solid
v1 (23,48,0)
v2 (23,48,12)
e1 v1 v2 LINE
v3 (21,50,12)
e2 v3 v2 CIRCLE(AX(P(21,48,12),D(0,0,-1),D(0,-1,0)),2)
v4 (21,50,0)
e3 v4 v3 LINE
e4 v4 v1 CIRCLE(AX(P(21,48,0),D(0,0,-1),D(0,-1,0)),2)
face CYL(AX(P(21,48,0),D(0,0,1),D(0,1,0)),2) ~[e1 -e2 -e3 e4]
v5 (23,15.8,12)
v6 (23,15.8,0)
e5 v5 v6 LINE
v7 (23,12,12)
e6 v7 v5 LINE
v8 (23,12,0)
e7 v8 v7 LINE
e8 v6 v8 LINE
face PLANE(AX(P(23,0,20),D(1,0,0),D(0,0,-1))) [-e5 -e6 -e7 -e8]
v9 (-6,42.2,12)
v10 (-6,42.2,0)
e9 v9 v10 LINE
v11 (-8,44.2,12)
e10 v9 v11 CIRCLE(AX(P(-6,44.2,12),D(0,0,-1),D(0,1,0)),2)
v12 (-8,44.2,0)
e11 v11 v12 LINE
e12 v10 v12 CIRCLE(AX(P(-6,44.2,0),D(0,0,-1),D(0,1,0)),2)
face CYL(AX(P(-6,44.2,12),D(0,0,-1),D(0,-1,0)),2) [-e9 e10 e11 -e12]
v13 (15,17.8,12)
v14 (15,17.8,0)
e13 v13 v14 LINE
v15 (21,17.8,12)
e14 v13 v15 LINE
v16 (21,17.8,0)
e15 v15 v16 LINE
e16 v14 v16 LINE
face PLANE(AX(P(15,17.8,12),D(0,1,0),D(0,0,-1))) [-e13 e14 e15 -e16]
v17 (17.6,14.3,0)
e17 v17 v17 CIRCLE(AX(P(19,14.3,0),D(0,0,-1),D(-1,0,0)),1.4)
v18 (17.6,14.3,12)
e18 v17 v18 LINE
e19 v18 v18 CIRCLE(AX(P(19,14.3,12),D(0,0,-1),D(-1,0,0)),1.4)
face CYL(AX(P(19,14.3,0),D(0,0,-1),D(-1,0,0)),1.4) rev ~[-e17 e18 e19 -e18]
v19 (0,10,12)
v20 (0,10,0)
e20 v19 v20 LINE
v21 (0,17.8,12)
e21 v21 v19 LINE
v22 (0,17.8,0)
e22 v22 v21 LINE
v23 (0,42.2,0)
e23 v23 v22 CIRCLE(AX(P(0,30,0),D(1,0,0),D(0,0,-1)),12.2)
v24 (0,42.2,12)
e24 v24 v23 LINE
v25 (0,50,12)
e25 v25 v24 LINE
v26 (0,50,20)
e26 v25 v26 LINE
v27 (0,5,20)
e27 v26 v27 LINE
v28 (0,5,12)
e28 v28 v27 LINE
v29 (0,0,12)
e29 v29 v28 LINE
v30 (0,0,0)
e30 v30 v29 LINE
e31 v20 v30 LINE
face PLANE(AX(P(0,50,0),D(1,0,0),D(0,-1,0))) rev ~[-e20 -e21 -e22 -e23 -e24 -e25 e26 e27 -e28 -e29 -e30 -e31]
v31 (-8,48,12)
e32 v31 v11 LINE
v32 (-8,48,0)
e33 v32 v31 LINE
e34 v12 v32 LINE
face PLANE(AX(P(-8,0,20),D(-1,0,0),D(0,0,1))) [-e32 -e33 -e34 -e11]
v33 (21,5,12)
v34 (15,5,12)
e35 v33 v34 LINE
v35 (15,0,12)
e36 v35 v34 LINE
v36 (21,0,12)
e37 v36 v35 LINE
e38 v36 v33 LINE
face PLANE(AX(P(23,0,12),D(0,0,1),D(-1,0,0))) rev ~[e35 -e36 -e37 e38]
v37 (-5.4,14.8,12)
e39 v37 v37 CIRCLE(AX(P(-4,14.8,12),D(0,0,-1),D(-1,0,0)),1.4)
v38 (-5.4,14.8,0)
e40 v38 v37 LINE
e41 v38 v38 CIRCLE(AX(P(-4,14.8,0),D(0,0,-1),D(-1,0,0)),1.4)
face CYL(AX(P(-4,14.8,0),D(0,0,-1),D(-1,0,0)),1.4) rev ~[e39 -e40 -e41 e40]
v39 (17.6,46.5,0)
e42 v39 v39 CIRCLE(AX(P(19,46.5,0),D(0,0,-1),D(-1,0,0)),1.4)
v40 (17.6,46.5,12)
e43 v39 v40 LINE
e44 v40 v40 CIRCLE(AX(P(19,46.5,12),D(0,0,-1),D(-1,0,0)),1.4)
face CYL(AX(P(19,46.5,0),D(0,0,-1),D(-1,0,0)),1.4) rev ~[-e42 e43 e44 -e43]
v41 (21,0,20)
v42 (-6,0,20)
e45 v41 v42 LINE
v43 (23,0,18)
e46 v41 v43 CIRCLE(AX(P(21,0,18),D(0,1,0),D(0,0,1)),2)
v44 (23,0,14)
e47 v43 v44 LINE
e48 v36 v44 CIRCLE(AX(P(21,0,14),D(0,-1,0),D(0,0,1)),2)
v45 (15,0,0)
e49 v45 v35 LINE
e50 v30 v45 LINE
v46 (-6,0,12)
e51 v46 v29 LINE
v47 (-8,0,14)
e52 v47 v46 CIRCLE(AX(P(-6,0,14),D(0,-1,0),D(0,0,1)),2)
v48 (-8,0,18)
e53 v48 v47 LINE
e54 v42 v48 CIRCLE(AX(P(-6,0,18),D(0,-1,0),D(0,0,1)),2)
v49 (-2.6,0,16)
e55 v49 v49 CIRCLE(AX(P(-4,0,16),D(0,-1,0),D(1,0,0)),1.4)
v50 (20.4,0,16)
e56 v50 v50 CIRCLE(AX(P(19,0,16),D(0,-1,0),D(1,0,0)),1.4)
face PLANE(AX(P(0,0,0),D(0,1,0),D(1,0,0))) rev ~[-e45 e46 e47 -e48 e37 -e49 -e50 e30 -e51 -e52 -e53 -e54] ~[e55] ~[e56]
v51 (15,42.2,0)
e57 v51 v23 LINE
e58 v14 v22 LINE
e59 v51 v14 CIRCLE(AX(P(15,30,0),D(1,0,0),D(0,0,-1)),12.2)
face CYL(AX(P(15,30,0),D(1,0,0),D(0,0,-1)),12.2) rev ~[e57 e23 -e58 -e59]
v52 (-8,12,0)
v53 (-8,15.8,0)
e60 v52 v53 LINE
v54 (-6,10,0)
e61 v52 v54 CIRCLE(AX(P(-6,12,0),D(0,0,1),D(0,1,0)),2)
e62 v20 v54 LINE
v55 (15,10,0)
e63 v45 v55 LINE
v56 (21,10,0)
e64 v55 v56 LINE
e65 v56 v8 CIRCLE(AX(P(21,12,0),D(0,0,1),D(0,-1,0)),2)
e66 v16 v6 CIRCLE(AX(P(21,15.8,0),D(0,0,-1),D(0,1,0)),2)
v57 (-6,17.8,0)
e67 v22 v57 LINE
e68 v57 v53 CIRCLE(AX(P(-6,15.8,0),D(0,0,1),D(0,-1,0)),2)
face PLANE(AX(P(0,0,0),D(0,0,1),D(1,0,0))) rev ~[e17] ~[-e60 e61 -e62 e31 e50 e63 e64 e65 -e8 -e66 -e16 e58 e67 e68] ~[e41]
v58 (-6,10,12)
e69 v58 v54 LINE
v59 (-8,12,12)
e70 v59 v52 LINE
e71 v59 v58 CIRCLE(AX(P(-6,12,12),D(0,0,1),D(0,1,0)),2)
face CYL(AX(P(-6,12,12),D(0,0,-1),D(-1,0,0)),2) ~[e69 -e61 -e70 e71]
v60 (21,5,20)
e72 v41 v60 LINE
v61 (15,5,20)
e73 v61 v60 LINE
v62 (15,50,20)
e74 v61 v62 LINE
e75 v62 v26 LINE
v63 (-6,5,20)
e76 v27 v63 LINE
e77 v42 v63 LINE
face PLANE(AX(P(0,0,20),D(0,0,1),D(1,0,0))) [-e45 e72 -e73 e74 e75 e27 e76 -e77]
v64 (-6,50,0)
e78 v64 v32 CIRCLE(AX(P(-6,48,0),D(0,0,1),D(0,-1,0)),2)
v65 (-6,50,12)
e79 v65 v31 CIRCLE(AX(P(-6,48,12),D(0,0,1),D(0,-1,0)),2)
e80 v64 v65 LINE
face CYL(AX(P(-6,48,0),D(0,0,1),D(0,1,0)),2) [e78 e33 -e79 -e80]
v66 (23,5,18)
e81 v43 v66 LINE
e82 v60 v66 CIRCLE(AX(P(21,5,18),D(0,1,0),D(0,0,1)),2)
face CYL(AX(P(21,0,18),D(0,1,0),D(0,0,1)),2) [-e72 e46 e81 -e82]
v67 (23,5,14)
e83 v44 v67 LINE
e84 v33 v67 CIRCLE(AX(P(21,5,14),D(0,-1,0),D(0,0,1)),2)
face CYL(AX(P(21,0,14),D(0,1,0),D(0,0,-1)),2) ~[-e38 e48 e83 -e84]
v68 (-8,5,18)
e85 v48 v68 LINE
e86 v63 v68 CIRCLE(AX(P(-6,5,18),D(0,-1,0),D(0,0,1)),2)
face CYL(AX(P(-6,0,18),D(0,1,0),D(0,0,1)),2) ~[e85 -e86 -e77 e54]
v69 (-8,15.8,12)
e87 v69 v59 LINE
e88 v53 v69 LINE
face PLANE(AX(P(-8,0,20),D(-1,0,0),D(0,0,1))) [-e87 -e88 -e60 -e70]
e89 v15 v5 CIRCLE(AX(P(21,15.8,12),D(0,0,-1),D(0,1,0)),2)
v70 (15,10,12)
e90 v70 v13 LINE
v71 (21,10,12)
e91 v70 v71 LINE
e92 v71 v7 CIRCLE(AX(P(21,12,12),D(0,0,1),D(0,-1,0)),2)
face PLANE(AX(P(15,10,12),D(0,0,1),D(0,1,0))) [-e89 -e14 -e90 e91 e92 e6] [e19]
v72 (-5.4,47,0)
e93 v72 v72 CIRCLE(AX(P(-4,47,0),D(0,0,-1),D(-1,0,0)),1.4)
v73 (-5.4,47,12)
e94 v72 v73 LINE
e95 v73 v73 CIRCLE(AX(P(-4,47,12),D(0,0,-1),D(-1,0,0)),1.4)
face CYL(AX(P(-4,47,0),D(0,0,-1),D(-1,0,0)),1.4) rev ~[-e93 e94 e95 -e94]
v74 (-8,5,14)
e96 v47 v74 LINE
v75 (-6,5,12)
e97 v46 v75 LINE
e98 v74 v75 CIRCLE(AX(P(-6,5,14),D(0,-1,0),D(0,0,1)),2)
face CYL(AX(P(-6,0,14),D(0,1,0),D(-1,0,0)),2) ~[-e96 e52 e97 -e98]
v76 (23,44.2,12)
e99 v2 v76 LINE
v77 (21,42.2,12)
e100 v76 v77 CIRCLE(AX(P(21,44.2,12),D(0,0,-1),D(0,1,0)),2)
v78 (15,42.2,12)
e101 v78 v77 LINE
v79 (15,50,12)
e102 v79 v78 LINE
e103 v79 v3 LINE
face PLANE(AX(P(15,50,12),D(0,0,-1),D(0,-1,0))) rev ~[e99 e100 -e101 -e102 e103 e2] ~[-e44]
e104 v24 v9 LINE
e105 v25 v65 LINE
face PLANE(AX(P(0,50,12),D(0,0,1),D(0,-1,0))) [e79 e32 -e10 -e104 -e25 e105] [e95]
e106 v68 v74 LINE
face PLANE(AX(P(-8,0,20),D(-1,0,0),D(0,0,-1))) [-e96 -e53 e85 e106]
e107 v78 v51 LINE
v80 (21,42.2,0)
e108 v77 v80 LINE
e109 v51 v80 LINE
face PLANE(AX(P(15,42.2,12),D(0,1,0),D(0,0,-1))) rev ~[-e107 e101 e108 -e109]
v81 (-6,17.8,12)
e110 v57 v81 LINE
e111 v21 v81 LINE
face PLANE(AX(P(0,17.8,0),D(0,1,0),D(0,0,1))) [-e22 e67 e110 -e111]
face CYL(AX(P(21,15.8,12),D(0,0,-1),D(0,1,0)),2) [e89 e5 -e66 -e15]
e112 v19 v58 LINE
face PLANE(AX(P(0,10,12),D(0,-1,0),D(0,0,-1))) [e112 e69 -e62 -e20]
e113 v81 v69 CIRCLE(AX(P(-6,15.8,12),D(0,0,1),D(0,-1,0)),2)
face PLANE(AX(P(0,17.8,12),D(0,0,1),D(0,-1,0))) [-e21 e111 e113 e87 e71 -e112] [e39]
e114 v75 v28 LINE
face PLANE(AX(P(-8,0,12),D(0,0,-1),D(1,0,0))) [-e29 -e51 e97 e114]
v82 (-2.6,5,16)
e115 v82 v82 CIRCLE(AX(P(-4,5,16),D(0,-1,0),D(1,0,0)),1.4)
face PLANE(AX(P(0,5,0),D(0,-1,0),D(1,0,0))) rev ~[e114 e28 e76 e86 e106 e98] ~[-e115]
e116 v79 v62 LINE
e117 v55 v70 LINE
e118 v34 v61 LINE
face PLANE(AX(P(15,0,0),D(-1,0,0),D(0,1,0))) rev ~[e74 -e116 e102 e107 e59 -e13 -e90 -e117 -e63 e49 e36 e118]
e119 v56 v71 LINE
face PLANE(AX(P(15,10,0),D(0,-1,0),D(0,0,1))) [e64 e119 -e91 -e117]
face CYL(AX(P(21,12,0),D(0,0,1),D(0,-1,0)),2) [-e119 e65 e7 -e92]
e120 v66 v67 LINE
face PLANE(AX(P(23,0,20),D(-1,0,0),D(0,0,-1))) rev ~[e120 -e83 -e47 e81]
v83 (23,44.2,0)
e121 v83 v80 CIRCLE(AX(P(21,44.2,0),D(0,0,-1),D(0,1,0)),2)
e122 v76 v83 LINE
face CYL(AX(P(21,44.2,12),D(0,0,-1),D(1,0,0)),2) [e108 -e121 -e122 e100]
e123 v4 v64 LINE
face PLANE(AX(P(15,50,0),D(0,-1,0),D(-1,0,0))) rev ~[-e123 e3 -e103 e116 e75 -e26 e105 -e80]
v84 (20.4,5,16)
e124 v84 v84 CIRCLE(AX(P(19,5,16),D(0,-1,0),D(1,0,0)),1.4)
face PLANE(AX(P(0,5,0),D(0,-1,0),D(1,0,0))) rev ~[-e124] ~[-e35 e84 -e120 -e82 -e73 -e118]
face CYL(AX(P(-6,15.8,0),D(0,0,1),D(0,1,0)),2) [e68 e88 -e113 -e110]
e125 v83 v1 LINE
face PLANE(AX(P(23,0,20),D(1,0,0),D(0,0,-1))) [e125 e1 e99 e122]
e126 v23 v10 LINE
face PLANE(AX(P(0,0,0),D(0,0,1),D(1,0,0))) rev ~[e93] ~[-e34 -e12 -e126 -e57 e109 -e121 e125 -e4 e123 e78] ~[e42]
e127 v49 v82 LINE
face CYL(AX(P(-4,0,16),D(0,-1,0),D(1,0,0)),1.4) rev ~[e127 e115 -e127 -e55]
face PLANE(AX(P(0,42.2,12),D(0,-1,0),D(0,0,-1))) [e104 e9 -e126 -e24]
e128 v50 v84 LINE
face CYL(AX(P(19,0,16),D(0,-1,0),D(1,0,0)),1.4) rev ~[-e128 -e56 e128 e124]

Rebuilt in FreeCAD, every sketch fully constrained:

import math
import FreeCAD as App
import Part
import Sketcher
Q = App.Units.Quantity


def edges_at(feature, points):
    """Names of the edges that pass closest to the given points."""
    edges = feature.Shape.Edges
    near = lambda p: min(range(len(edges)), key=lambda i: edges[i].distToShape(Part.Vertex(*p))[0])
    return sorted({f"Edge{near(p) + 1}" for p in points})


def add_polygon(sketch, points):
    """Adds a closed chain of lines whose ends are joined by coincident constraints."""
    first, n = sketch.GeometryCount, len(points)
    for a, b in zip(points, points[1:] + points[:1]):
        sketch.addGeometry(Part.LineSegment(App.Vector(*a, 0), App.Vector(*b, 0)), False)
    for i in range(n):
        sketch.addConstraint(Sketcher.Constraint("Coincident", first + i, 2, first + (i + 1) % n, 1))

doc = App.newDocument("Part")
body = doc.addObject("PartDesign::Body", "Body")

# Sketch on XY plane
sketch1 = doc.addObject("Sketcher::SketchObject", "Sketch")
body.addObject(sketch1)
sketch1.AttachmentSupport = (doc.XY_Plane, [""])
sketch1.MapMode = "FlatFace"
add_polygon(sketch1, [(0, 50), (0, 0), (15, 0), (15, 50)])  # lines 0-3
sketch1.addConstraint([
    Sketcher.Constraint("Vertical", 0),
    Sketcher.Constraint("Horizontal", 1),
    Sketcher.Constraint("Vertical", 2),
    Sketcher.Constraint("Horizontal", 3),
    Sketcher.Constraint("Coincident", 0, 2, -1, 1),
    Sketcher.Constraint("DistanceX", 1, 1, 1, 2, Q("15 mm")),
    Sketcher.Constraint("DistanceY", 0, 2, 0, 1, Q("50 mm")),
])
pad1 = doc.addObject("PartDesign::Pad", "Pad")
body.addObject(pad1)
pad1.Profile = sketch1
pad1.Length = 20

# Sketch on YZ plane
sketch2 = doc.addObject("Sketcher::SketchObject", "Sketch001")
body.addObject(sketch2)
sketch2.AttachmentSupport = (doc.YZ_Plane, [""])
sketch2.MapMode = "FlatFace"
sketch2.AttachmentOffset = App.Placement(App.Vector(0, 0, 15), App.Rotation())
sketch2.addGeometry([
    Part.LineSegment(App.Vector(18, 0, 0), App.Vector(42, 0, 0)),
    Part.ArcOfCircle(Part.Circle(App.Vector(30, 0, 0), App.Vector(0, 0, 1), 12), math.radians(0), math.radians(180)),
], False)
sketch2.addConstraint([
    Sketcher.Constraint("Coincident", 0, 1, 1, 2),
    Sketcher.Constraint("Coincident", 1, 1, 0, 2),
    Sketcher.Constraint("Horizontal", 0),
    Sketcher.Constraint("PointOnObject", 1, 3, -1),
    Sketcher.Constraint("PointOnObject", 0, 1, -1),
    Sketcher.Constraint("Radius", 1, Q("12.2 mm")),
    Sketcher.Constraint("DistanceX", -1, 1, 1, 3, Q("30 mm")),
])
pocket1 = doc.addObject("PartDesign::Pocket", "Pocket")
body.addObject(pocket1)
pocket1.Profile = sketch2
pocket1.Type = "ThroughAll"

# Sketch on YZ plane
sketch3 = doc.addObject("Sketcher::SketchObject", "Sketch002")
body.addObject(sketch3)
sketch3.AttachmentSupport = (doc.YZ_Plane, [""])
sketch3.MapMode = "FlatFace"
sketch3.AttachmentOffset = App.Placement(App.Vector(0, 0, 15), App.Rotation())
add_polygon(sketch3, [(42, 0), (50, 0), (50, 12), (42, 12)])  # lines 0-3
add_polygon(sketch3, [(10, 12), (10, 0), (18, 0), (18, 12)])  # lines 4-7
sketch3.addConstraint([
    Sketcher.Constraint("Horizontal", 0),
    Sketcher.Constraint("Vertical", 1),
    Sketcher.Constraint("Horizontal", 2),
    Sketcher.Constraint("Vertical", 3),
    Sketcher.Constraint("Vertical", 4),
    Sketcher.Constraint("Horizontal", 5),
    Sketcher.Constraint("Vertical", 6),
    Sketcher.Constraint("Horizontal", 7),
    Sketcher.Constraint("PointOnObject", 0, 2, -1),
    Sketcher.Constraint("PointOnObject", 4, 2, -1),
    Sketcher.Constraint("Horizontal", 2, 2, 6, 2),
    Sketcher.Constraint("Equal", 2, 5),
    Sketcher.Constraint("DistanceY", 1, 1, 1, 2, Q("12 mm")),
    Sketcher.Constraint("DistanceX", 0, 1, 0, 2, Q("7.8 mm")),
    Sketcher.Constraint("DistanceX", -1, 1, 0, 2, Q("50 mm")),
    Sketcher.Constraint("DistanceX", -1, 1, 4, 2, Q("10 mm")),
])
pad2 = doc.addObject("PartDesign::Pad", "Pad001")
body.addObject(pad2)
pad2.Profile = sketch3
pad2.Length = 8

# Sketch on XY plane
sketch4 = doc.addObject("Sketcher::SketchObject", "Sketch003")
body.addObject(sketch4)
sketch4.AttachmentSupport = (doc.XY_Plane, [""])
sketch4.MapMode = "FlatFace"
sketch4.addGeometry([
    Part.Circle(App.Vector(19, 46.5, 0), App.Vector(0, 0, 1), 1.4),
    Part.Circle(App.Vector(19, 14.3, 0), App.Vector(0, 0, 1), 1.4),
], False)
sketch4.addConstraint([
    Sketcher.Constraint("Equal", 0, 1),
    Sketcher.Constraint("Vertical", 0, 3, 1, 3),
    Sketcher.Constraint("Diameter", 0, Q("2.8 mm")),
    Sketcher.Constraint("DistanceX", -1, 1, 0, 3, Q("19 mm")),
    Sketcher.Constraint("DistanceY", -1, 1, 0, 3, Q("46.5 mm")),
    Sketcher.Constraint("DistanceY", -1, 1, 1, 3, Q("14.3 mm")),
])
pocket2 = doc.addObject("PartDesign::Pocket", "Pocket001")
body.addObject(pocket2)
pocket2.Profile = sketch4
pocket2.Type = "ThroughAll"
pocket2.Reversed = True

# Sketch on YZ plane
sketch5 = doc.addObject("Sketcher::SketchObject", "Sketch004")
body.addObject(sketch5)
sketch5.AttachmentSupport = (doc.YZ_Plane, [""])
sketch5.MapMode = "FlatFace"
add_polygon(sketch5, [(50, 0), (42, 0), (42, 12), (50, 12)])  # lines 0-3
add_polygon(sketch5, [(18, 12), (18, 0), (10, 0), (10, 12)])  # lines 4-7
sketch5.addConstraint([
    Sketcher.Constraint("Horizontal", 0),
    Sketcher.Constraint("Vertical", 1),
    Sketcher.Constraint("Horizontal", 2),
    Sketcher.Constraint("Vertical", 3),
    Sketcher.Constraint("Vertical", 4),
    Sketcher.Constraint("Horizontal", 5),
    Sketcher.Constraint("Vertical", 6),
    Sketcher.Constraint("Horizontal", 7),
    Sketcher.Constraint("PointOnObject", 0, 2, -1),
    Sketcher.Constraint("PointOnObject", 4, 2, -1),
    Sketcher.Constraint("Horizontal", 2, 2, 6, 2),
    Sketcher.Constraint("Equal", 2, 5),
    Sketcher.Constraint("DistanceY", 1, 1, 1, 2, Q("12 mm")),
    Sketcher.Constraint("DistanceX", 0, 2, 0, 1, Q("7.8 mm")),
    Sketcher.Constraint("DistanceX", -1, 1, 2, 2, Q("50 mm")),
    Sketcher.Constraint("DistanceX", -1, 1, 5, 2, Q("10 mm")),
])
pad3 = doc.addObject("PartDesign::Pad", "Pad002")
body.addObject(pad3)
pad3.Profile = sketch5
pad3.Length = 8
pad3.Reversed = True

# Sketch on XY plane
sketch6 = doc.addObject("Sketcher::SketchObject", "Sketch005")
body.addObject(sketch6)
sketch6.AttachmentSupport = (doc.XY_Plane, [""])
sketch6.MapMode = "FlatFace"
sketch6.addGeometry([
    Part.Circle(App.Vector(-4, 47, 0), App.Vector(0, 0, 1), 1.4),
    Part.Circle(App.Vector(-4, 14.8, 0), App.Vector(0, 0, 1), 1.4),
], False)
sketch6.addConstraint([
    Sketcher.Constraint("Equal", 0, 1),
    Sketcher.Constraint("Vertical", 0, 3, 1, 3),
    Sketcher.Constraint("Diameter", 0, Q("2.8 mm")),
    Sketcher.Constraint("DistanceX", 0, 3, -1, 1, Q("4 mm")),
    Sketcher.Constraint("DistanceY", -1, 1, 0, 3, Q("47 mm")),
    Sketcher.Constraint("DistanceY", -1, 1, 1, 3, Q("14.8 mm")),
])
pocket3 = doc.addObject("PartDesign::Pocket", "Pocket002")
body.addObject(pocket3)
pocket3.Profile = sketch6
pocket3.Type = "ThroughAll"
pocket3.Reversed = True

# Sketch on XZ plane
sketch7 = doc.addObject("Sketcher::SketchObject", "Sketch006")
body.addObject(sketch7)
sketch7.AttachmentSupport = (doc.XZ_Plane, [""])
sketch7.MapMode = "FlatFace"
add_polygon(sketch7, [(-8, 12), (0, 12), (0, 20), (-8, 20)])  # lines 0-3
sketch7.addGeometry(Part.Circle(App.Vector(-4, 16, 0), App.Vector(0, 0, 1), 1.4), False)  # 4
add_polygon(sketch7, [(15, 20), (15, 12), (23, 12), (23, 20)])  # lines 5-8
sketch7.addGeometry(Part.Circle(App.Vector(19, 16, 0), App.Vector(0, 0, 1), 1.4), False)  # 9
sketch7.addConstraint([
    Sketcher.Constraint("Horizontal", 0),
    Sketcher.Constraint("Vertical", 1),
    Sketcher.Constraint("Horizontal", 2),
    Sketcher.Constraint("Vertical", 3),
    Sketcher.Constraint("Vertical", 5),
    Sketcher.Constraint("Horizontal", 6),
    Sketcher.Constraint("Vertical", 7),
    Sketcher.Constraint("Horizontal", 8),
    Sketcher.Constraint("Equal", 4, 9),
    Sketcher.Constraint("PointOnObject", 0, 2, -2),
    Sketcher.Constraint("Horizontal", 4, 3, 9, 3),
    Sketcher.Constraint("Horizontal", 3, 2, 5, 2),
    Sketcher.Constraint("Horizontal", 2, 2, 7, 2),
    Sketcher.Constraint("Equal", 2, 6),
    Sketcher.Constraint("Equal", 8, 1),
    Sketcher.Constraint("Diameter", 4, Q("2.8 mm")),
    Sketcher.Constraint("DistanceX", 0, 1, 0, 2, Q("8 mm")),
    Sketcher.Constraint("DistanceX", 4, 3, -1, 1, Q("4 mm")),
    Sketcher.Constraint("DistanceY", 0, 2, 4, 3, Q("4 mm")),
    Sketcher.Constraint("DistanceX", 5, 2, 9, 3, Q("4 mm")),
    Sketcher.Constraint("DistanceY", -1, 1, 4, 3, Q("16 mm")),
    Sketcher.Constraint("DistanceX", -1, 1, 9, 3, Q("19 mm")),
])
pad4 = doc.addObject("PartDesign::Pad", "Pad003")
body.addObject(pad4)
pad4.Profile = sketch7
pad4.Length = 5
pad4.Reversed = True
doc.recompute()

fillet = doc.addObject("PartDesign::Fillet", "Fillet")
body.addObject(fillet)
fillet.Base = (pad4, edges_at(pad4, [(23, 2.5, 20), (23, 2.5, 12)]))
fillet.Radius = 2
doc.recompute()

fillet2 = doc.addObject("PartDesign::Fillet", "Fillet001")
body.addObject(fillet2)
fillet2.Base = (fillet, edges_at(fillet, [(-8, 2.5, 12), (-8, 2.5, 20)]))
fillet2.Radius = 2
doc.recompute()

fillet3 = doc.addObject("PartDesign::Fillet", "Fillet002")
body.addObject(fillet3)
fillet3.Base = (fillet2, edges_at(fillet2, [(23, 17.8, 6), (23, 10, 6)]))
fillet3.Radius = 2
doc.recompute()

fillet4 = doc.addObject("PartDesign::Fillet", "Fillet003")
body.addObject(fillet4)
fillet4.Base = (fillet3, edges_at(fillet3, [(-8, 10, 6), (-8, 17.8, 6)]))
fillet4.Radius = 2
doc.recompute()

fillet5 = doc.addObject("PartDesign::Fillet", "Fillet004")
body.addObject(fillet5)
fillet5.Base = (fillet4, edges_at(fillet4, [(-8, 50, 6), (-8, 42.2, 6)]))
fillet5.Radius = 2
doc.recompute()

fillet6 = doc.addObject("PartDesign::Fillet", "Fillet005")
body.addObject(fillet6)
fillet6.Base = (fillet5, edges_at(fillet5, [(23, 50, 6), (23, 42.2, 6)]))
fillet6.Radius = 2

doc.recompute()
